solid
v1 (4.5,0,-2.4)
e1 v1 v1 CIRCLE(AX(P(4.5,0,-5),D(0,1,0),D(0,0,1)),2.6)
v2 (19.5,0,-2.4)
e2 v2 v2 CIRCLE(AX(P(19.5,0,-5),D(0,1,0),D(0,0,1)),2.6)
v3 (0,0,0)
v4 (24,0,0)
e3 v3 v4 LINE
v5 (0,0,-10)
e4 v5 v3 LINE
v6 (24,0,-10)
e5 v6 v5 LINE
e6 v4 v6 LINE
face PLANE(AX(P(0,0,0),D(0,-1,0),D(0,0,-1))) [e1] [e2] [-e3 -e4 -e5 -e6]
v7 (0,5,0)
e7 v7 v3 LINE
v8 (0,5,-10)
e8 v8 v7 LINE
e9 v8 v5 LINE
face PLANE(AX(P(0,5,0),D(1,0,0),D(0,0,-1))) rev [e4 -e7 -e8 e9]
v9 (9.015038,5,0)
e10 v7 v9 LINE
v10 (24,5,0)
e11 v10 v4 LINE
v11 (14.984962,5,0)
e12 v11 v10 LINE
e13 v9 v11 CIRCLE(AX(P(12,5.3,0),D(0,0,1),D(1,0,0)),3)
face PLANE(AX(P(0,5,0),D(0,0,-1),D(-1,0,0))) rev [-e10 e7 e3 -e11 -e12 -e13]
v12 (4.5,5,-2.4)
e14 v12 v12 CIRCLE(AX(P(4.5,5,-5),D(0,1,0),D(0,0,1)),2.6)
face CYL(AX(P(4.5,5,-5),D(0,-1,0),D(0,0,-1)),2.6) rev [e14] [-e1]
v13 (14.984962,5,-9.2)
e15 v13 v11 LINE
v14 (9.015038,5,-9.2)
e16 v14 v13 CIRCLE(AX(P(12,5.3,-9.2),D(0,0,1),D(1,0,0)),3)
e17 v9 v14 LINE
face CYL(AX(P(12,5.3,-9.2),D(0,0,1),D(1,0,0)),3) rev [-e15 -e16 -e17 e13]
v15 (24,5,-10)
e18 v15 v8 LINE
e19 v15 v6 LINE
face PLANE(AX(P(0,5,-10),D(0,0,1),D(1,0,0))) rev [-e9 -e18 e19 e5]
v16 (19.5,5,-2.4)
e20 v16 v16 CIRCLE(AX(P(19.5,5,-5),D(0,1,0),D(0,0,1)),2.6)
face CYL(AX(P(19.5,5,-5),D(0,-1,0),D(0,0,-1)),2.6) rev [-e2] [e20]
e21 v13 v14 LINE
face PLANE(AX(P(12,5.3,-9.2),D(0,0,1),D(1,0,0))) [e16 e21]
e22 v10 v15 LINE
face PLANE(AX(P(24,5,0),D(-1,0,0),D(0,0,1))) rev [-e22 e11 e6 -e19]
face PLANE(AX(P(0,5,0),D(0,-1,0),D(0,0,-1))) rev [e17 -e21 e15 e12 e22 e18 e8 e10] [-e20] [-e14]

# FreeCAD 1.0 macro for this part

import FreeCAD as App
import Part
import Sketcher
Q = App.Units.Quantity


def add_polygon(sketch, points):
    """Adds a closed chain of lines whose ends are joined by coincident constraints."""
    first, n = sketch.GeometryCount, len(points)
    for a, b in zip(points, points[1:] + points[:1]):
        sketch.addGeometry(Part.LineSegment(App.Vector(*a, 0), App.Vector(*b, 0)), False)
    for i in range(n):
        sketch.addConstraint(Sketcher.Constraint("Coincident", first + i, 2, first + (i + 1) % n, 1))

doc = App.newDocument("Part")
params = doc.addObject("Spreadsheet::Sheet", "Params")
for row, (alias, value) in enumerate([
    ("sketch1_diameter", "5.2 mm"),
    ("sketch1_width", "24 mm"),
    ("sketch1_height", "10 mm"),
    ("pad1_length", "5 mm"),
    ("sketch2_diameter", "6 mm"),
    ("pocket1_length", "9.2 mm"),
], start=1):
    params.set(f"A{row}", alias)
    params.set(f"B{row}", "=" + value)
    params.setAlias(f"B{row}", alias)

body = doc.addObject("PartDesign::Body", "Body")

sketch1 = body.newObject("Sketcher::SketchObject", "Sketch")
sketch1.AttachmentSupport = (doc.getObject("XZ_Plane"), [""])
sketch1.MapMode = "FlatFace"
add_polygon(sketch1, [(0, -10), (0, 0), (24, 0), (24, -10)])
sketch1.addGeometry(Part.Circle(App.Vector(4.5, -5, 0), App.Vector(0, 0, 1), 2.6), False)
sketch1.addGeometry(Part.Circle(App.Vector(19.5, -5, 0), App.Vector(0, 0, 1), 2.6), False)
sketch1.addConstraint(Sketcher.Constraint("Vertical", 0))
sketch1.addConstraint(Sketcher.Constraint("Horizontal", 1))
sketch1.addConstraint(Sketcher.Constraint("Vertical", 2))
sketch1.addConstraint(Sketcher.Constraint("Horizontal", 3))
sketch1.addConstraint(Sketcher.Constraint("Coincident", 0, 2, -1, 1))
sketch1.addConstraint(Sketcher.Constraint("Equal", 4, 5))
sketch1.addConstraint(Sketcher.Constraint("Horizontal", 4, 3, 5, 3))
sketch1.addConstraint(Sketcher.Constraint("Diameter", 4, Q("5.2 mm")))
sketch1.addConstraint(Sketcher.Constraint("DistanceX", 1, 1, 1, 2, Q("24 mm")))
sketch1.addConstraint(Sketcher.Constraint("DistanceY", 0, 1, 0, 2, Q("10 mm")))
sketch1.addConstraint(Sketcher.Constraint("DistanceY", 4, 3, -1, 1, Q("5 mm")))
sketch1.addConstraint(Sketcher.Constraint("DistanceX", 4, 3, 5, 3, Q("15 mm")))
sketch1.addConstraint(Sketcher.Constraint("DistanceX", -1, 1, 4, 3, Q("4.5 mm")))
sketch1.setExpression("Constraints[11]", "Params.sketch1_diameter")
sketch1.setExpression("Constraints[12]", "Params.sketch1_width")
sketch1.setExpression("Constraints[13]", "Params.sketch1_height")
pad1 = body.newObject("PartDesign::Pad", "Pad")
pad1.Profile = sketch1
pad1.setExpression("Length", "Params.pad1_length")
pad1.Reversed = True

sketch2 = body.newObject("Sketcher::SketchObject", "Sketch001")
sketch2.AttachmentSupport = (doc.getObject("XY_Plane"), [""])
sketch2.MapMode = "FlatFace"
sketch2.addGeometry(Part.Circle(App.Vector(12, 5.3, 0), App.Vector(0, 0, 1), 3), False)
sketch2.addConstraint(Sketcher.Constraint("Diameter", 0, Q("6 mm")))
sketch2.addConstraint(Sketcher.Constraint("DistanceX", -1, 1, 0, 3, Q("12 mm")))
sketch2.addConstraint(Sketcher.Constraint("DistanceY", -1, 1, 0, 3, Q("5.3 mm")))
sketch2.setExpression("Constraints[0]", "Params.sketch2_diameter")
pocket1 = body.newObject("PartDesign::Pocket", "Pocket")
pocket1.Profile = sketch2
pocket1.setExpression("Length", "Params.pocket1_length")

doc.recompute()
